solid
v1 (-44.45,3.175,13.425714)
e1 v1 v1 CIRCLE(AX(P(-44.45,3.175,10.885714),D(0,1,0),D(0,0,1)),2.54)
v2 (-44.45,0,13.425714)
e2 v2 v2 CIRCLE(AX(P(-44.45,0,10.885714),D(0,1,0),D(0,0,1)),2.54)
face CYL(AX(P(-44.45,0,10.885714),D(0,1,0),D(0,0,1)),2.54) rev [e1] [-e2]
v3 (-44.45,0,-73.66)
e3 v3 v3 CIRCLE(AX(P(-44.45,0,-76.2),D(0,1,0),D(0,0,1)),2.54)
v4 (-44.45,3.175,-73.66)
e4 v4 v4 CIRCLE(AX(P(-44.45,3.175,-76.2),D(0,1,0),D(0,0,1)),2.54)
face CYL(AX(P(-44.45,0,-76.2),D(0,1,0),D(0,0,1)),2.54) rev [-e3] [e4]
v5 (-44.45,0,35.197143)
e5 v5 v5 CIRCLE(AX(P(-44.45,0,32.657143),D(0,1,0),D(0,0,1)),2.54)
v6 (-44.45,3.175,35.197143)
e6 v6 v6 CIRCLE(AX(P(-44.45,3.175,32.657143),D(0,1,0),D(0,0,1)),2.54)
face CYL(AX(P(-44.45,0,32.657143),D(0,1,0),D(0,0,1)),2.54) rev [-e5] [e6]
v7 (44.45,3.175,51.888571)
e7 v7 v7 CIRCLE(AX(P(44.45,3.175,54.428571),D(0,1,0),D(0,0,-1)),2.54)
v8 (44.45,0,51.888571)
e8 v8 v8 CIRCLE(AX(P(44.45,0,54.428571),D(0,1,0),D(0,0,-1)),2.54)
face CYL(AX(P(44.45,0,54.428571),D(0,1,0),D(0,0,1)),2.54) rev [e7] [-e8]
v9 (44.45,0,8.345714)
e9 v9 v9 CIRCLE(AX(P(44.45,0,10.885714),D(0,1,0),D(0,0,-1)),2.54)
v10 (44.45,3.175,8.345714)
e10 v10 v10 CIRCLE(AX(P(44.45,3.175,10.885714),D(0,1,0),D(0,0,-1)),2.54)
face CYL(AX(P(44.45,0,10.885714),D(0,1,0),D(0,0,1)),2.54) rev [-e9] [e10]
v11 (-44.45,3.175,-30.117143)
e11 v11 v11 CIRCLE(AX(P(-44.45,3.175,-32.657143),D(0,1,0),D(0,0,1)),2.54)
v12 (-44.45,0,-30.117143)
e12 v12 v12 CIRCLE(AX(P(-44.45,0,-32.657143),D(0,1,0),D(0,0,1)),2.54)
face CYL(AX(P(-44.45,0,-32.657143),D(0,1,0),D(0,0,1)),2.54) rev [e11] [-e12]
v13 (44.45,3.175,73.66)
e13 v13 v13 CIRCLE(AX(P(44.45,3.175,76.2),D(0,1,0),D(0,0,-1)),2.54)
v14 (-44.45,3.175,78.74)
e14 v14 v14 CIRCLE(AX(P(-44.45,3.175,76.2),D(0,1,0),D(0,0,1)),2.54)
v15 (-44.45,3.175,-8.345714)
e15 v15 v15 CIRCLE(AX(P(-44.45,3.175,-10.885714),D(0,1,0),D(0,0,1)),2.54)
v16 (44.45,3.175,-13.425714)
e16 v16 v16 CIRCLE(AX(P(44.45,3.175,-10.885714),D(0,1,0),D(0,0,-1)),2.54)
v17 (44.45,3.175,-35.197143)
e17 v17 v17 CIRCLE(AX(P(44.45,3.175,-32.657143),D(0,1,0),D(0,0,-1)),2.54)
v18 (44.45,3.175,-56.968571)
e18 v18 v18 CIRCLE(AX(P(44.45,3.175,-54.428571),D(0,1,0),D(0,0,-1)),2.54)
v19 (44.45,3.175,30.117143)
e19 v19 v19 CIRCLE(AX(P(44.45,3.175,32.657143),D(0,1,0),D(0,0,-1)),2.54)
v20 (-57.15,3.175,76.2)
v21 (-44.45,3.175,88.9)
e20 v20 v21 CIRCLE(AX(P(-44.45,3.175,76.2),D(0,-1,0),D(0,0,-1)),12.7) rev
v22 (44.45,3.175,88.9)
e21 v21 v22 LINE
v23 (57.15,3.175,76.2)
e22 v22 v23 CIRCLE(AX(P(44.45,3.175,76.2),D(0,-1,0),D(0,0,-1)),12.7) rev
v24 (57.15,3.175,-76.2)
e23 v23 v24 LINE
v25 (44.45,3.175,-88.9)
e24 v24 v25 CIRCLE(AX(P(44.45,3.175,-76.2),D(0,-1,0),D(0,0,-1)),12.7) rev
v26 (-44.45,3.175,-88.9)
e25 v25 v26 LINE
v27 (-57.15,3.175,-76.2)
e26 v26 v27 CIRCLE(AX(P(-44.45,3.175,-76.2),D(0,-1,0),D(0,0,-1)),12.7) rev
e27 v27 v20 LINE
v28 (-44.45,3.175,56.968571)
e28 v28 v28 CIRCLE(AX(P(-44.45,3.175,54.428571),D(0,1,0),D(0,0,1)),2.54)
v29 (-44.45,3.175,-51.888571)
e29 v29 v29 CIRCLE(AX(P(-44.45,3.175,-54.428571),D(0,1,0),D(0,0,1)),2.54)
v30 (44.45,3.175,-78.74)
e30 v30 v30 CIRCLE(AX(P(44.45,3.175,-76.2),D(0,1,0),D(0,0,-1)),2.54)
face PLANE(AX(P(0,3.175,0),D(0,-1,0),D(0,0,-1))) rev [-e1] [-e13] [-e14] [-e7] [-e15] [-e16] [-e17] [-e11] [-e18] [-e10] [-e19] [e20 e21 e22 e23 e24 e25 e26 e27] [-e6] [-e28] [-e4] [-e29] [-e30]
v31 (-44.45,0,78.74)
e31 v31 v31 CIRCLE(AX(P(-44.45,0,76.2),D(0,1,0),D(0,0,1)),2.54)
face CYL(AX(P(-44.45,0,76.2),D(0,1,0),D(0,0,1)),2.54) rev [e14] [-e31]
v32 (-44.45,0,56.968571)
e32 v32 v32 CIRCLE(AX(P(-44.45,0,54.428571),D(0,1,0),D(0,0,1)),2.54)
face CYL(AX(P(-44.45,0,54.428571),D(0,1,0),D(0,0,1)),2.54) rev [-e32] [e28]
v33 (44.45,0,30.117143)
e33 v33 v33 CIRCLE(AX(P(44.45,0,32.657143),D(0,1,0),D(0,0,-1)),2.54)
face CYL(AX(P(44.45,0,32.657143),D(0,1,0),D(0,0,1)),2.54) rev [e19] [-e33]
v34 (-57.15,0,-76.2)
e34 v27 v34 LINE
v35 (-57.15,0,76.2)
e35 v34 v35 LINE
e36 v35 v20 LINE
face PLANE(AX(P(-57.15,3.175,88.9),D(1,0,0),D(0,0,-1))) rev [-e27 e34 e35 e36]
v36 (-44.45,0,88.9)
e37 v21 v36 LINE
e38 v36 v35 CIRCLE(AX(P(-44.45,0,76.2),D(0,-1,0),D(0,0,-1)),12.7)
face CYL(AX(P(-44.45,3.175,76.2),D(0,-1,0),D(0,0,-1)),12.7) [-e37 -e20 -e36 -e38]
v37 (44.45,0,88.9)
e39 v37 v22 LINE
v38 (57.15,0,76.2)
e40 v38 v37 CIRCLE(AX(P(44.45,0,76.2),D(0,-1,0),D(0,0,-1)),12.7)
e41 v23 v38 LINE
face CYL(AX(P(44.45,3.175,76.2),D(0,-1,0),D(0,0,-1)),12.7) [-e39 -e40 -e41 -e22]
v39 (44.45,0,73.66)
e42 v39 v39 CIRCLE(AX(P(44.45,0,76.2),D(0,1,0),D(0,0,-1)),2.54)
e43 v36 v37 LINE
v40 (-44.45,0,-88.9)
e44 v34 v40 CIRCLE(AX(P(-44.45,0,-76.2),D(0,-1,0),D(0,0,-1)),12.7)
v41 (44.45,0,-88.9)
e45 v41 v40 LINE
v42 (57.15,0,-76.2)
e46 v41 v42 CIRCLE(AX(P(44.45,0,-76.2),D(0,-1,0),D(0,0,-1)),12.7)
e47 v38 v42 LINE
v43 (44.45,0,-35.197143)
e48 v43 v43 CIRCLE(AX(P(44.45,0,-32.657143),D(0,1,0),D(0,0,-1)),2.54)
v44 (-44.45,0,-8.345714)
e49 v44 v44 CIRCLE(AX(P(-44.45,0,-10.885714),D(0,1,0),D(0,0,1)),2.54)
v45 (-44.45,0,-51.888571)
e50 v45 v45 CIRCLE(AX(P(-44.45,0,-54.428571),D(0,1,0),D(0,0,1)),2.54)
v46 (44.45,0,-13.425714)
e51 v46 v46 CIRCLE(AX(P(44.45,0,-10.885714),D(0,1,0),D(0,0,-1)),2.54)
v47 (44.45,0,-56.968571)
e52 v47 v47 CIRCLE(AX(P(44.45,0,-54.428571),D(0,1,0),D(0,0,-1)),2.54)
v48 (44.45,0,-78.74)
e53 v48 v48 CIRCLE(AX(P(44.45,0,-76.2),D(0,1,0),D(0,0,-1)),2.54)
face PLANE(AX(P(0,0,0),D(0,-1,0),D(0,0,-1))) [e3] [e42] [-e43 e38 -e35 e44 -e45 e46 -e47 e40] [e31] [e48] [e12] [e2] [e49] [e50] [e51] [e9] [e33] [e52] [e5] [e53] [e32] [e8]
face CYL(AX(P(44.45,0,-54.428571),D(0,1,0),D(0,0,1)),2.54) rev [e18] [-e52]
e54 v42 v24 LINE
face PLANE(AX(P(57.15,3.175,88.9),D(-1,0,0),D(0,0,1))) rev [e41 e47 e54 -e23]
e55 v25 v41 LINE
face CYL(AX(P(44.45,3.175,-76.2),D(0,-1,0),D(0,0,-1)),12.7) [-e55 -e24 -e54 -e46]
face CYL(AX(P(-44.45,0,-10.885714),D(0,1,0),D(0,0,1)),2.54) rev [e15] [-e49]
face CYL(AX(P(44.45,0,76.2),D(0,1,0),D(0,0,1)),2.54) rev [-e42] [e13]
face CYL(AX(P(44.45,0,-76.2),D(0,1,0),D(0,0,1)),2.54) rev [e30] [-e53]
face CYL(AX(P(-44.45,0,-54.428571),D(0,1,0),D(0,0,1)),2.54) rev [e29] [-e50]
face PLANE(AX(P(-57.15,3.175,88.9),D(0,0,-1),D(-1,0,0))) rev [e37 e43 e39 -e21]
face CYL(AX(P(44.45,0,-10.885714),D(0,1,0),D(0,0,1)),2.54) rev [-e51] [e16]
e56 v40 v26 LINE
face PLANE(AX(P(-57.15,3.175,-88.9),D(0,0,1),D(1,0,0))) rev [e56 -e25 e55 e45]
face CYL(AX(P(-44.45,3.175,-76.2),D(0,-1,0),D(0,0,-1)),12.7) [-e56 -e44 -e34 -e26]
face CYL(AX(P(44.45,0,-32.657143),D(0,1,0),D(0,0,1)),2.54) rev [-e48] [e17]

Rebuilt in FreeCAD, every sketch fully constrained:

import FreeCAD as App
import Part
import Sketcher
from FreeCAD import Vector
Q = App.Units.Quantity


def edges_at(feature, points):
    """Names of the edges that pass closest to the given points."""
    edges = feature.Shape.Edges
    near = lambda p: min(range(len(edges)), key=lambda i: edges[i].distToShape(Part.Vertex(*p))[0])
    return sorted({f"Edge{near(p) + 1}" for p in points})


def add_polygon(sketch, points):
    """Adds a closed chain of lines whose ends are joined by coincident constraints."""
    first, n = sketch.GeometryCount, len(points)
    for a, b in zip(points, points[1:] + points[:1]):
        sketch.addGeometry(Part.LineSegment(App.Vector(*a, 0), App.Vector(*b, 0)), False)
    for i in range(n):
        sketch.addConstraint(Sketcher.Constraint("Coincident", first + i, 2, first + (i + 1) % n, 1))

doc = App.newDocument("Part")
body = doc.addObject("PartDesign::Body", "Body")

sketch1 = body.newObject("Sketcher::SketchObject", "Sketch")
sketch1.AttachmentSupport = (doc.getObject("XZ_Plane"), [""])
sketch1.MapMode = "FlatFace"
add_polygon(sketch1, [(-57, -89), (-57, 89), (57, 89), (57, -89)])
sketch1.addConstraint([
    Sketcher.Constraint("Vertical", 0),
    Sketcher.Constraint("Horizontal", 1),
    Sketcher.Constraint("Vertical", 2),
    Sketcher.Constraint("Horizontal", 3),
    Sketcher.Constraint("Symmetric", 0, 2, 2, 2, -1, 1),
    Sketcher.Constraint("DistanceY", 0, 1, 0, 2, Q("7 in")),
    Sketcher.Constraint("DistanceX", 1, 1, 1, 2, Q("4.5 in")),
])
pad1 = body.newObject("PartDesign::Pad", "Pad")
pad1.Profile = sketch1
pad1.Length = Q("0.125 in")
pad1.Reversed = True

sketch2 = body.newObject("Sketcher::SketchObject", "Sketch001")
sketch2.AttachmentSupport = (doc.getObject("XZ_Plane"), [""])
sketch2.MapMode = "FlatFace"
sketch2.AttachmentOffset = App.Placement(Vector(0, 0, -0.125 * 25.4), App.Rotation())
sketch2.addGeometry([
    Part.Circle(Vector(-44.5, -76.2, 0), Vector(0, 0, 1), 2.5),
    Part.Circle(Vector(-44.5, -54.4, 0), Vector(0, 0, 1), 2.5),
    Part.Circle(Vector(-44.5, -32.7, 0), Vector(0, 0, 1), 2.5),
    Part.Circle(Vector(-44.5, -10.9, 0), Vector(0, 0, 1), 2.5),
    Part.Circle(Vector(-44.5, 10.9, 0), Vector(0, 0, 1), 2.5),
    Part.Circle(Vector(-44.5, 32.7, 0), Vector(0, 0, 1), 2.5),
    Part.Circle(Vector(-44.5, 54.4, 0), Vector(0, 0, 1), 2.5),
    Part.Circle(Vector(-44.5, 76.2, 0), Vector(0, 0, 1), 2.5),
    Part.Circle(Vector(44.5, 76.2, 0), Vector(0, 0, 1), 2.5),
    Part.Circle(Vector(44.5, 54.4, 0), Vector(0, 0, 1), 2.5),
    Part.Circle(Vector(44.5, 32.7, 0), Vector(0, 0, 1), 2.5),
    Part.Circle(Vector(44.5, 10.9, 0), Vector(0, 0, 1), 2.5),
    Part.Circle(Vector(44.5, -10.9, 0), Vector(0, 0, 1), 2.5),
    Part.Circle(Vector(44.5, -32.7, 0), Vector(0, 0, 1), 2.5),
    Part.Circle(Vector(44.5, -54.4, 0), Vector(0, 0, 1), 2.5),
    Part.Circle(Vector(44.5, -76.2, 0), Vector(0, 0, 1), 2.5),
], False)
sketch2.addConstraint([
    Sketcher.Constraint("Equal", 0, 1),
    Sketcher.Constraint("Equal", 1, 2),
    Sketcher.Constraint("Equal", 2, 3),
    Sketcher.Constraint("Equal", 3, 4),
    Sketcher.Constraint("Equal", 4, 5),
    Sketcher.Constraint("Equal", 5, 6),
    Sketcher.Constraint("Equal", 6, 7),
    Sketcher.Constraint("Equal", 7, 8),
    Sketcher.Constraint("Equal", 8, 9),
    Sketcher.Constraint("Equal", 9, 10),
    Sketcher.Constraint("Equal", 10, 11),
    Sketcher.Constraint("Equal", 11, 12),
    Sketcher.Constraint("Equal", 12, 13),
    Sketcher.Constraint("Equal", 13, 14),
    Sketcher.Constraint("Equal", 14, 15),
    Sketcher.Constraint("Symmetric", 0, 3, 8, 3, -1, 1),
    Sketcher.Constraint("Symmetric", 1, 3, 9, 3, -1, 1),
    Sketcher.Constraint("Symmetric", 2, 3, 10, 3, -1, 1),
    Sketcher.Constraint("Symmetric", 3, 3, 11, 3, -1, 1),
    Sketcher.Constraint("Symmetric", 4, 3, 12, 3, -1, 1),
    Sketcher.Constraint("Symmetric", 5, 3, 13, 3, -1, 1),
    Sketcher.Constraint("Symmetric", 6, 3, 14, 3, -1, 1),
    Sketcher.Constraint("Symmetric", 7, 3, 15, 3, -1, 1),
    Sketcher.Constraint("Symmetric", 7, 3, 8, 3, -2),
    Sketcher.Constraint("Symmetric", 6, 3, 9, 3, -2),
    Sketcher.Constraint("Symmetric", 5, 3, 10, 3, -2),
    Sketcher.Constraint("Symmetric", 4, 3, 11, 3, -2),
    Sketcher.Constraint("Vertical", 0, 3, 1, 3),
    Sketcher.Constraint("Vertical", 1, 3, 2, 3),
    Sketcher.Constraint("Vertical", 2, 3, 3, 3),
    Sketcher.Constraint("Diameter", 0, Q("0.2 in")),
    Sketcher.Constraint("DistanceY", 0, 3, -1, 1, Q("3 in")),
    Sketcher.Constraint("DistanceX", 7, 3, 8, 3, Q("3.5 in")),
    Sketcher.Constraint("DistanceY", 1, 3, -1, 1, Q("54.428571 mm")),
    Sketcher.Constraint("DistanceY", 1, 3, 2, 3, Q("21.771429 mm")),
    Sketcher.Constraint("DistanceY", 2, 3, 3, 3, Q("21.771429 mm")),
])
pocket1 = body.newObject("PartDesign::Pocket", "Pocket")
pocket1.Profile = sketch2
pocket1.Length = Q("0.125 in")
pocket1.Reversed = True
doc.recompute()

fillet = body.newObject("PartDesign::Fillet", "Fillet")
fillet.Base = (pocket1, edges_at(pocket1, [
    (57.15, 1.587, 88.9),
    (-57.15, 1.587, 88.9),
    (-57.15, 1.587, -88.9),
    (57.15, 1.587, -88.9),
]))
fillet.Radius = Q("0.5 in")

doc.recompute()
